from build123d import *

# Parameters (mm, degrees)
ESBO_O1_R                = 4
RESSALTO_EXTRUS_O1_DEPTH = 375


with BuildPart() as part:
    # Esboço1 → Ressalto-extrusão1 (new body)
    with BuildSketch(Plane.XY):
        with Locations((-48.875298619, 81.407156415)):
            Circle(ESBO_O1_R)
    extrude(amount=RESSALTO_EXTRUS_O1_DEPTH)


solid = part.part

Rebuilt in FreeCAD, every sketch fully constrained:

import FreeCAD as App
import Part
import Sketcher
Q = App.Units.Quantity

doc = App.newDocument("Part")
body = doc.addObject("PartDesign::Body", "Body")

# Sketch on XY plane
sketch1 = doc.addObject("Sketcher::SketchObject", "Sketch")
body.addObject(sketch1)
sketch1.AttachmentSupport = (doc.XY_Plane, [""])
sketch1.MapMode = "FlatFace"
sketch1.addGeometry(Part.Circle(App.Vector(-48.9, 81.4, 0), App.Vector(0, 0, 1), 4), False)
sketch1.addConstraint(Sketcher.Constraint("Diameter", 0, Q("8 mm")))
sketch1.addConstraint(Sketcher.Constraint("DistanceX", 0, 3, -1, 1, Q("48.875299 mm")))
sketch1.addConstraint(Sketcher.Constraint("DistanceY", -1, 1, 0, 3, Q("81.407156 mm")))
pad1 = doc.addObject("PartDesign::Pad", "Pad")
body.addObject(pad1)
pad1.Profile = sketch1
pad1.Length = 375

doc.recompute()
